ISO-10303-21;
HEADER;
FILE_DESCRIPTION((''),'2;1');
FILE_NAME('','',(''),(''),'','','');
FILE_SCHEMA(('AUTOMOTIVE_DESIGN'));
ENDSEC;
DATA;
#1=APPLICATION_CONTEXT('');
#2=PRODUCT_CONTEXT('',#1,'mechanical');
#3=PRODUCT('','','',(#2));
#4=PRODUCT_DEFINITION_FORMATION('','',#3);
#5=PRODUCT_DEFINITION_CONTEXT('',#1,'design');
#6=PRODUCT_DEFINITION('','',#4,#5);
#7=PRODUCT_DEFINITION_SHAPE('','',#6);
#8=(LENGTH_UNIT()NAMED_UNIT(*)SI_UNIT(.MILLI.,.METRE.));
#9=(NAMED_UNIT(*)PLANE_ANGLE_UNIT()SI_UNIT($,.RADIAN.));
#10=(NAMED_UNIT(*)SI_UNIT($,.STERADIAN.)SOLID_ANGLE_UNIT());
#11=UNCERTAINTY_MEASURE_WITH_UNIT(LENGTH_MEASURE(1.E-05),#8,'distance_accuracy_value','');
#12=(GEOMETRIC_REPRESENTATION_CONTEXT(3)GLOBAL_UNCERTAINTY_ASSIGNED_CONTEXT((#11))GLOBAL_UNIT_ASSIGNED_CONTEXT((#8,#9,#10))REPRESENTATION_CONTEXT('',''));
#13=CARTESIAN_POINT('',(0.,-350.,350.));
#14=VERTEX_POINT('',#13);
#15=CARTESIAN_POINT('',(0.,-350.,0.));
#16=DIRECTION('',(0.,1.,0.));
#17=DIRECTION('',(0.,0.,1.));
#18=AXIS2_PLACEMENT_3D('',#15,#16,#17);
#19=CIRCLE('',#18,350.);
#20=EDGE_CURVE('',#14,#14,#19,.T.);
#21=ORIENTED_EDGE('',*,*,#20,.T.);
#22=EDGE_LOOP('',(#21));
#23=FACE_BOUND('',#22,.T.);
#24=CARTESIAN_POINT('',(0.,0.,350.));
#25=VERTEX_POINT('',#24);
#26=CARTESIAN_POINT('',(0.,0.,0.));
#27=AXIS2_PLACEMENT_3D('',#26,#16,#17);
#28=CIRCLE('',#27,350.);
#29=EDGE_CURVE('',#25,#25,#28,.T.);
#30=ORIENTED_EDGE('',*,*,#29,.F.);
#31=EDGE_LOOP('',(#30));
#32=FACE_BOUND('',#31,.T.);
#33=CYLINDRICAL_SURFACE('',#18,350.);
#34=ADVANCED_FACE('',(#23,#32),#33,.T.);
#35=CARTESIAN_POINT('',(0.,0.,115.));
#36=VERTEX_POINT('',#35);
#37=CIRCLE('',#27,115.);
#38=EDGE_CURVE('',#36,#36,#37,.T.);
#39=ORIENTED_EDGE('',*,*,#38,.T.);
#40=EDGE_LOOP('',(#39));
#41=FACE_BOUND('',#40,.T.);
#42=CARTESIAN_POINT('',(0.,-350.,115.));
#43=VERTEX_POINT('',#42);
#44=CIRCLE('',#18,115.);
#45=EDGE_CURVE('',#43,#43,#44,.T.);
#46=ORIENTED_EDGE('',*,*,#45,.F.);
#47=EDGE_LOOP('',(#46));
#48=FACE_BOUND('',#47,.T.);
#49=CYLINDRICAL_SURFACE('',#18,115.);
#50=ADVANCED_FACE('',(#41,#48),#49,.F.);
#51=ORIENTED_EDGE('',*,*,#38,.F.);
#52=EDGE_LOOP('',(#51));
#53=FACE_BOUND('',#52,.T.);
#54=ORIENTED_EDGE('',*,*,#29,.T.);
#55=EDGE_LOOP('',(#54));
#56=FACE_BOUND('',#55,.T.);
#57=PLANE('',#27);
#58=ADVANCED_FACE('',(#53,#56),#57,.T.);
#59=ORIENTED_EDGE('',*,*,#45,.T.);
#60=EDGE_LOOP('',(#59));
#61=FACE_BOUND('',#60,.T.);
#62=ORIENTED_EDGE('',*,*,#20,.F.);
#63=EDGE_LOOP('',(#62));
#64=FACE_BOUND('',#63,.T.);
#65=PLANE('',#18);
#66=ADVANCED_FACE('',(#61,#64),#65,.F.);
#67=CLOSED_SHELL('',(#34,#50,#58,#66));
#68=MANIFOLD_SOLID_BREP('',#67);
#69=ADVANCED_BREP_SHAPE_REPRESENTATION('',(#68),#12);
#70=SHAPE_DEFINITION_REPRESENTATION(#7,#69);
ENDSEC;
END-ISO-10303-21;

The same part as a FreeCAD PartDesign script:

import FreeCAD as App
import Part
import Sketcher

doc = App.newDocument("Part")
body = doc.addObject("PartDesign::Body", "Body")

# Sketch on XZ plane
sketch1 = body.newObject("Sketcher::SketchObject", "Sketch")
sketch1.AttachmentSupport = (doc.getObject("XZ_Plane"), [""])
sketch1.MapMode = "FlatFace"
sketch1.addGeometry(Part.Circle(App.Vector(0, 0, 0), App.Vector(0, 0, 1), 350), False)
sketch1.addGeometry(Part.Circle(App.Vector(0, 0, 0), App.Vector(0, 0, 1), 115), False)
sketch1.addConstraint(Sketcher.Constraint("Coincident", 0, 3, -1, 1))
sketch1.addConstraint(Sketcher.Constraint("Coincident", 1, 3, -1, 1))
sketch1.addConstraint(Sketcher.Constraint("Diameter", 0, 700.0))
sketch1.addConstraint(Sketcher.Constraint("Diameter", 1, 230.0))
pad1 = body.newObject("PartDesign::Pad", "Pad")
pad1.Profile = sketch1
pad1.Length = 350

doc.recompute()
